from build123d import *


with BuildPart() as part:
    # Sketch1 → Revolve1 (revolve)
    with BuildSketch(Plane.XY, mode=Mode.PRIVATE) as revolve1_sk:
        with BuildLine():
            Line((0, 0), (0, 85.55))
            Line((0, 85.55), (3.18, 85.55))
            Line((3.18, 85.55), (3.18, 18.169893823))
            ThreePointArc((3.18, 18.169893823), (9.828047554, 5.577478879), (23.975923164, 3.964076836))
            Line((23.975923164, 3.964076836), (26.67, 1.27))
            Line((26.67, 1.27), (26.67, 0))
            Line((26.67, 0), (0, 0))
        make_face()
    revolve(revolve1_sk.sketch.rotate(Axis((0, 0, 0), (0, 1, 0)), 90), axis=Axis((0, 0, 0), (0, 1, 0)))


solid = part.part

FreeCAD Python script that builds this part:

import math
import FreeCAD as App
import Part
import Sketcher
from FreeCAD import Vector
Q = App.Units.Quantity

doc = App.newDocument("Part")
body = doc.addObject("PartDesign::Body", "Body")

sketch1 = body.newObject("Sketcher::SketchObject", "Sketch")
sketch1.AttachmentSupport = (doc.getObject("XY_Plane"), [""])
sketch1.MapMode = "FlatFace"
sketch1.addGeometry(Part.LineSegment(Vector(0, 85.5, 0), Vector(0, 0, 0)), False)
sketch1.addGeometry(Part.LineSegment(Vector(0, 0, 0), Vector(26.7, 0, 0)), False)
sketch1.addGeometry(Part.LineSegment(Vector(26.7, 0, 0), Vector(26.7, 1.3, 0)), False)
sketch1.addGeometry(Part.LineSegment(Vector(26.7, 1.3, 0), Vector(24, 4, 0)), False)
sketch1.addGeometry(Part.ArcOfCircle(Part.Circle(Vector(18.4, 18.2, 0), Vector(0, 0, 1), 15.2), math.radians(180), math.radians(291)), False)
sketch1.addGeometry(Part.LineSegment(Vector(3.2, 18.2, 0), Vector(3.2, 85.5, 0)), False)
sketch1.addGeometry(Part.LineSegment(Vector(3.2, 85.5, 0), Vector(0, 85.5, 0)), False)
sketch1.addConstraint(Sketcher.Constraint("Coincident", 0, 2, 1, 1))
sketch1.addConstraint(Sketcher.Constraint("Coincident", 1, 2, 2, 1))
sketch1.addConstraint(Sketcher.Constraint("Coincident", 2, 2, 3, 1))
sketch1.addConstraint(Sketcher.Constraint("Coincident", 3, 2, 4, 2))
sketch1.addConstraint(Sketcher.Constraint("Tangent", 4, 1, 5, 1))
sketch1.addConstraint(Sketcher.Constraint("Coincident", 5, 2, 6, 1))
sketch1.addConstraint(Sketcher.Constraint("Coincident", 6, 2, 0, 1))
sketch1.addConstraint(Sketcher.Constraint("Vertical", 0))
sketch1.addConstraint(Sketcher.Constraint("Horizontal", 1))
sketch1.addConstraint(Sketcher.Constraint("Vertical", 2))
sketch1.addConstraint(Sketcher.Constraint("Vertical", 5))
sketch1.addConstraint(Sketcher.Constraint("Horizontal", 6))
sketch1.addConstraint(Sketcher.Constraint("Coincident", 0, 2, -1, 1))
sketch1.addConstraint(Sketcher.Constraint("Angle", 3, Q("135 deg")))
sketch1.addConstraint(Sketcher.Constraint("DistanceX", 1, 1, 1, 2, Q("1.05 in")))
sketch1.addConstraint(Sketcher.Constraint("DistanceY", 2, 1, 2, 2, Q("0.05 in")))
sketch1.addConstraint(Sketcher.Constraint("Distance", 3, Q("0.15 in")))
sketch1.addConstraint(Sketcher.Constraint("Radius", 4, Q("15.25 mm")))
sketch1.addConstraint(Sketcher.Constraint("DistanceX", 6, 2, 6, 1, Q("3.18 mm")))
sketch1.addConstraint(Sketcher.Constraint("DistanceY", 0, 2, 0, 1, Q("85.55 mm")))
revolution = body.newObject("PartDesign::Revolution", "Revolution")
revolution.Profile = sketch1
revolution.ReferenceAxis = (sketch1, ["V_Axis"])
revolution.Angle = 360

doc.recompute()
